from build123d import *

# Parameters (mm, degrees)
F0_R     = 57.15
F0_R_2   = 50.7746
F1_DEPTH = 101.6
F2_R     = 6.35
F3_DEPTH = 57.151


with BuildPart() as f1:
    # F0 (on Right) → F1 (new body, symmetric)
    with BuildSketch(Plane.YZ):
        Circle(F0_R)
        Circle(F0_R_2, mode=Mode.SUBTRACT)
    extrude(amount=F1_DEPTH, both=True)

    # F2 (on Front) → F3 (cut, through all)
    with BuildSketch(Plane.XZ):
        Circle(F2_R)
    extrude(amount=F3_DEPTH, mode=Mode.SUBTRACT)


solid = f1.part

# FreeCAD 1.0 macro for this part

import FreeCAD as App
import Part
import Sketcher

V = App.Vector
Q = App.Units.Quantity

doc = App.newDocument("Part")
body = doc.addObject("PartDesign::Body", "Body")

sketch1 = body.newObject("Sketcher::SketchObject", "Sketch")
sketch1.AttachmentSupport = (doc.getObject("YZ_Plane"), [""])
sketch1.MapMode = "FlatFace"
sketch1.addGeometry(Part.Circle(V(0, 0, 0), V(0, 0, 1), 57), False)
sketch1.addGeometry(Part.Circle(V(0, 0, 0), V(0, 0, 1), 51), False)
sketch1.addConstraint(Sketcher.Constraint("Coincident", 0, 3, -1, 1))
sketch1.addConstraint(Sketcher.Constraint("Coincident", 1, 3, -1, 1))
sketch1.addConstraint(Sketcher.Constraint("Diameter", 0, Q("4.5 in")))
sketch1.addConstraint(Sketcher.Constraint("Diameter", 1, Q("3.998 in")))
pad1 = body.newObject("PartDesign::Pad", "Pad")
pad1.Profile = sketch1
pad1.Length = Q("8 in")
pad1.Midplane = True

sketch2 = body.newObject("Sketcher::SketchObject", "Sketch001")
sketch2.AttachmentSupport = (doc.getObject("XZ_Plane"), [""])
sketch2.MapMode = "FlatFace"
sketch2.addGeometry(Part.Circle(V(0, 0, 0), V(0, 0, 1), 6), False)
sketch2.addConstraint(Sketcher.Constraint("Coincident", 0, 3, -1, 1))
sketch2.addConstraint(Sketcher.Constraint("Diameter", 0, Q("0.5 in")))
pocket1 = body.newObject("PartDesign::Pocket", "Pocket")
pocket1.Profile = sketch2
pocket1.Type = "ThroughAll"
pocket1.Reversed = True

doc.recompute()
